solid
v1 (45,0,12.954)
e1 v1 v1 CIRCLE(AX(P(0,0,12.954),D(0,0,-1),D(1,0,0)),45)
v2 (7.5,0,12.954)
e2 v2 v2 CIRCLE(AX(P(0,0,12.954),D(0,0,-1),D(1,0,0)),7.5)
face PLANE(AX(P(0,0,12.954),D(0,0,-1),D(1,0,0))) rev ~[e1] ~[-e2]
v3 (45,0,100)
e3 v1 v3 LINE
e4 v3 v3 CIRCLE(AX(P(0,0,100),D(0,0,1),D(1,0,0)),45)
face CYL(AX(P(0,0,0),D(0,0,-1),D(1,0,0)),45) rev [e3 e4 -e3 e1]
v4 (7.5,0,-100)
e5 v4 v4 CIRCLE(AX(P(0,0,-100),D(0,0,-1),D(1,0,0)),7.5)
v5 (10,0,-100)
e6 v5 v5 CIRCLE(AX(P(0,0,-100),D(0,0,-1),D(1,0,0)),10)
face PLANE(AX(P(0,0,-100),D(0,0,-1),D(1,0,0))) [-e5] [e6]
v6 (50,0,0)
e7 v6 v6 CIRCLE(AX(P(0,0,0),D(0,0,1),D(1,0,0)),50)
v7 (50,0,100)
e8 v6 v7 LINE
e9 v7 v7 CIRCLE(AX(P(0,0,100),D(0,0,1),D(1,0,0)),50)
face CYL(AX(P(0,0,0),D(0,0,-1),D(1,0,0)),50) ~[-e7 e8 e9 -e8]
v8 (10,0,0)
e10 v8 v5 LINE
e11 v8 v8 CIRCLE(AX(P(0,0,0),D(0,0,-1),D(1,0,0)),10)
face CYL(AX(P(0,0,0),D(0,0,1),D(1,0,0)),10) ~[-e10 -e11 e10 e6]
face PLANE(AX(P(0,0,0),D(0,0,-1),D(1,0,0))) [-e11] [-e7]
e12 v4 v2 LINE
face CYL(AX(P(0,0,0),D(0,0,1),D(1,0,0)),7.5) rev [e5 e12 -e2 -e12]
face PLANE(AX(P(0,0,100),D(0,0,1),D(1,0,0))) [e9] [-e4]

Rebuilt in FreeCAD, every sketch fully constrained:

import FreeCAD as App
import Part
import Sketcher
from FreeCAD import Vector

doc = App.newDocument("Part")
body = doc.addObject("PartDesign::Body", "Body")

# Sketch on XY plane
sketch1 = doc.addObject("Sketcher::SketchObject", "Sketch")
body.addObject(sketch1)
sketch1.AttachmentSupport = (doc.XY_Plane, [""])
sketch1.MapMode = "FlatFace"
sketch1.addGeometry([
    Part.Circle(Vector(0, 0, 0), Vector(0, 0, 1), 50),
    Part.Circle(Vector(0, 0, 0), Vector(0, 0, 1), 45),
], False)
sketch1.addConstraint([
    Sketcher.Constraint("Coincident", 0, 3, -1, 1),
    Sketcher.Constraint("Coincident", 1, 3, -1, 1),
    Sketcher.Constraint("Diameter", 0, 100.0),
    Sketcher.Constraint("Diameter", 1, 90.0),
])
pad1 = doc.addObject("PartDesign::Pad", "Pad")
body.addObject(pad1)
pad1.Profile = sketch1
pad1.Length = 100

# Sketch on XY plane
sketch2 = doc.addObject("Sketcher::SketchObject", "Sketch001")
body.addObject(sketch2)
sketch2.AttachmentSupport = (doc.XY_Plane, [""])
sketch2.MapMode = "FlatFace"
sketch2.addGeometry(Part.Circle(Vector(0, 0, 0), Vector(0, 0, 1), 45), False)
sketch2.addConstraint([
    Sketcher.Constraint("Coincident", 0, 3, -1, 1),
    Sketcher.Constraint("Diameter", 0, 90.0),
])
pad2 = doc.addObject("PartDesign::Pad", "Pad001")
body.addObject(pad2)
pad2.Profile = sketch2
pad2.Length = 12.954

# Sketch on XY plane
sketch3 = doc.addObject("Sketcher::SketchObject", "Sketch002")
body.addObject(sketch3)
sketch3.AttachmentSupport = (doc.XY_Plane, [""])
sketch3.MapMode = "FlatFace"
sketch3.addGeometry(Part.Circle(Vector(0, 0, 0), Vector(0, 0, 1), 7.5), False)
sketch3.addConstraint([
    Sketcher.Constraint("Coincident", 0, 3, -1, 1),
    Sketcher.Constraint("Diameter", 0, 15.0),
])
pocket1 = doc.addObject("PartDesign::Pocket", "Pocket")
body.addObject(pocket1)
pocket1.Profile = sketch3
pocket1.Type = "ThroughAll"
pocket1.Reversed = True

# Sketch on XY plane
sketch4 = doc.addObject("Sketcher::SketchObject", "Sketch003")
body.addObject(sketch4)
sketch4.AttachmentSupport = (doc.XY_Plane, [""])
sketch4.MapMode = "FlatFace"
sketch4.addGeometry([
    Part.Circle(Vector(0, 0, 0), Vector(0, 0, 1), 10),
    Part.Circle(Vector(0, 0, 0), Vector(0, 0, 1), 7.5),
], False)
sketch4.addConstraint([
    Sketcher.Constraint("Coincident", 0, 3, -1, 1),
    Sketcher.Constraint("Coincident", 1, 3, -1, 1),
    Sketcher.Constraint("Diameter", 0, 20.0),
    Sketcher.Constraint("Diameter", 1, 15.0),
])
pad3 = doc.addObject("PartDesign::Pad", "Pad002")
body.addObject(pad3)
pad3.Profile = sketch4
pad3.Length = 100
pad3.Reversed = True

doc.recompute()
